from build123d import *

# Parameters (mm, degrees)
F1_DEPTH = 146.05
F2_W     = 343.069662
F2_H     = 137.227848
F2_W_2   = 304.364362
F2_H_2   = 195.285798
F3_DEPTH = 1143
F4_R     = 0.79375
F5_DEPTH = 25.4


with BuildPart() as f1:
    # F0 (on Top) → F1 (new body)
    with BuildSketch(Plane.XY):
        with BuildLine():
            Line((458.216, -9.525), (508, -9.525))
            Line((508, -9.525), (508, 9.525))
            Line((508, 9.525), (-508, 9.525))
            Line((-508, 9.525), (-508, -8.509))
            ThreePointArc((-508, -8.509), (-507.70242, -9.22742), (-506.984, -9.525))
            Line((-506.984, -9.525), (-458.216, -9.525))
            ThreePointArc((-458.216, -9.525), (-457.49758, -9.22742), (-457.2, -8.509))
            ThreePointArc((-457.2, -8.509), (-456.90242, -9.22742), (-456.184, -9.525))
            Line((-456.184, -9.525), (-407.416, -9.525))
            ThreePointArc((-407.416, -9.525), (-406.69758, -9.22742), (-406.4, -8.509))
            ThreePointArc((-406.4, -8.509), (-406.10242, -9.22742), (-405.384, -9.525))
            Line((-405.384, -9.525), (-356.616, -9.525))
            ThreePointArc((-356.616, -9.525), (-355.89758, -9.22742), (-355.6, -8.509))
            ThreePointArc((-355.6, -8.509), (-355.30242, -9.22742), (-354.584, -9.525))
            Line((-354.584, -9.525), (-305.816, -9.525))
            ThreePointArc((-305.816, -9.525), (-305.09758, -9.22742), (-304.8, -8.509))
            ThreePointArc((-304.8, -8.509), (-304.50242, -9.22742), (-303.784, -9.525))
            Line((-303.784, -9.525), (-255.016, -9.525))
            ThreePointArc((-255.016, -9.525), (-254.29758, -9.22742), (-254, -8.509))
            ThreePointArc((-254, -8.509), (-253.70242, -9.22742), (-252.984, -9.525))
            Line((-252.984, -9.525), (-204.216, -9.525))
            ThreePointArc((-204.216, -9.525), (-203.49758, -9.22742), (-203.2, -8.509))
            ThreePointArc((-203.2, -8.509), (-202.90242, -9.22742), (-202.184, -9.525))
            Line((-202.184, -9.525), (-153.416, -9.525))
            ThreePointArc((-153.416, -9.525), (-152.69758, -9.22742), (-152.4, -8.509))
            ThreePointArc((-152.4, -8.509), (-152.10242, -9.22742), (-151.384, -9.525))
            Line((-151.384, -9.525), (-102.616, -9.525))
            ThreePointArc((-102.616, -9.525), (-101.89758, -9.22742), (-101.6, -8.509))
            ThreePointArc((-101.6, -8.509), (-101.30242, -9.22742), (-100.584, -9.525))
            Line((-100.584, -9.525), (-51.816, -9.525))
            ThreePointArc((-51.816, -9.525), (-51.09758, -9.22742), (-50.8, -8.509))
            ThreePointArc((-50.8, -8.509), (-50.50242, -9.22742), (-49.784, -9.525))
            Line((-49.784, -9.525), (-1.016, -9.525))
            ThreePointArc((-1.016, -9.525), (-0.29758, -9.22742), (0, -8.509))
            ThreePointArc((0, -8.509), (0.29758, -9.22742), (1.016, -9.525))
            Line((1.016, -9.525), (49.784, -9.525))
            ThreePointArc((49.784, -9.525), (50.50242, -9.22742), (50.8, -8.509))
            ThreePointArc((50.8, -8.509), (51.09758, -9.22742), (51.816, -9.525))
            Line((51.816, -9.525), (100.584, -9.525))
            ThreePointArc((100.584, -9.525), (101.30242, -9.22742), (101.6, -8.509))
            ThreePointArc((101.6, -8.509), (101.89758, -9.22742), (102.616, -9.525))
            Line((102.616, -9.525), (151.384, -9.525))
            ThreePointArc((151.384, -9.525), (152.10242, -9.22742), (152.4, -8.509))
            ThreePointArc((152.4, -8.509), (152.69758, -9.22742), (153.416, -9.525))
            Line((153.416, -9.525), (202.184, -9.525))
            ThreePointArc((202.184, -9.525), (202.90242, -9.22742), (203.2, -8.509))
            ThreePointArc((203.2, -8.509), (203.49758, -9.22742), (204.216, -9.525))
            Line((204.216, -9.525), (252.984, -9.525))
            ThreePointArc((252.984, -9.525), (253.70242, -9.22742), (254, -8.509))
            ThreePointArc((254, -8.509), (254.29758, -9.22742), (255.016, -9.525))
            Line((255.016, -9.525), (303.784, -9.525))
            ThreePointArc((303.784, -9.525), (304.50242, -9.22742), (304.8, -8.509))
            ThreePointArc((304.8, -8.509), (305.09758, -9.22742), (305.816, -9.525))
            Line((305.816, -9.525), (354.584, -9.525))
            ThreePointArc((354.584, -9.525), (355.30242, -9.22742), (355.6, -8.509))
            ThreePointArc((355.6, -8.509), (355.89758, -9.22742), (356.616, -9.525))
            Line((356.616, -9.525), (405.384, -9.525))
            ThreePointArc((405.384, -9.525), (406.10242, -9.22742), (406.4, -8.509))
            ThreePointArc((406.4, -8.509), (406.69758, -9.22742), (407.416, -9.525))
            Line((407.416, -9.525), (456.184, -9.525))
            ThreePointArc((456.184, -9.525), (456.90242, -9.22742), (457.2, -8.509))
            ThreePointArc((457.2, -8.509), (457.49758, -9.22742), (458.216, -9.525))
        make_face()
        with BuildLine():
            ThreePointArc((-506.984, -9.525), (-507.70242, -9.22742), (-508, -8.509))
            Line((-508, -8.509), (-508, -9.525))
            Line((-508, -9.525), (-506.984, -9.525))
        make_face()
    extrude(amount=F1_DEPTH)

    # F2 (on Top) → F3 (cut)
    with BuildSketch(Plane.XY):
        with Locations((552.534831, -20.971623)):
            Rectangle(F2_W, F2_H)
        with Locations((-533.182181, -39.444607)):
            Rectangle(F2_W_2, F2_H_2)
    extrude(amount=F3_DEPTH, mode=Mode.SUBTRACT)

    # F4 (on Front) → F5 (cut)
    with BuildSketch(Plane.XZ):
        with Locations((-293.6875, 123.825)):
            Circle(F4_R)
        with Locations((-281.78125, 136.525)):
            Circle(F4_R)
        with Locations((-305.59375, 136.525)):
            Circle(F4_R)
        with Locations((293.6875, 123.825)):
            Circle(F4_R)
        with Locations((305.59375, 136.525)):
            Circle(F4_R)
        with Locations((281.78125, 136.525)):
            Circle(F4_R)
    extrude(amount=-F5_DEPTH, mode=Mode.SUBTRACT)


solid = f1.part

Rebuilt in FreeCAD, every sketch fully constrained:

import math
import FreeCAD as App
import Part
import Sketcher
Q = App.Units.Quantity

doc = App.newDocument("Part")
body = doc.addObject("PartDesign::Body", "Body")

# Sketch on XY plane
sketch1 = body.newObject("Sketcher::SketchObject", "Sketch")
sketch1.AttachmentSupport = (doc.getObject("XY_Plane"), [""])
sketch1.MapMode = "FlatFace"
sketch1.addGeometry([
    Part.LineSegment(App.Vector(458.216, -9.525, 0), App.Vector(508, -9.525, 0)),  # 0
    Part.LineSegment(App.Vector(508, -9.525, 0), App.Vector(508, 9.525, 0)),  # 1
    Part.LineSegment(App.Vector(508, 9.525, 0), App.Vector(-508, 9.525, 0)),  # 2
    Part.LineSegment(App.Vector(-508, 9.525, 0), App.Vector(-508, -9.525, 0)),  # 3
    Part.LineSegment(App.Vector(-508, -9.525, 0), App.Vector(-458.216, -9.525, 0)),  # 4
    Part.ArcOfCircle(Part.Circle(App.Vector(-458.216002, -8.508998, 0), App.Vector(0, 0, 1), 1.016002), math.radians(-89.999906), math.radians(-0.000094)),  # 5
    Part.ArcOfCircle(Part.Circle(App.Vector(-456.183998, -8.508998, 0), App.Vector(0, 0, 1), 1.016002), math.radians(-179.999906), math.radians(-90.000094)),  # 6
    Part.LineSegment(App.Vector(-456.184, -9.525, 0), App.Vector(-407.416, -9.525, 0)),  # 7
    Part.ArcOfCircle(Part.Circle(App.Vector(-407.416002, -8.508998, 0), App.Vector(0, 0, 1), 1.016002), math.radians(-89.999906), math.radians(-0.000094)),  # 8
    Part.ArcOfCircle(Part.Circle(App.Vector(-405.383998, -8.508998, 0), App.Vector(0, 0, 1), 1.016002), math.radians(-179.999906), math.radians(-90.000094)),  # 9
    Part.LineSegment(App.Vector(-405.384, -9.525, 0), App.Vector(-356.616, -9.525, 0)),  # 10
    Part.ArcOfCircle(Part.Circle(App.Vector(-356.616002, -8.508998, 0), App.Vector(0, 0, 1), 1.016002), math.radians(-89.999906), math.radians(-0.000094)),  # 11
    Part.ArcOfCircle(Part.Circle(App.Vector(-354.583998, -8.508998, 0), App.Vector(0, 0, 1), 1.016002), math.radians(-179.999906), math.radians(-90.000094)),  # 12
    Part.LineSegment(App.Vector(-354.584, -9.525, 0), App.Vector(-305.816, -9.525, 0)),  # 13
    Part.ArcOfCircle(Part.Circle(App.Vector(-305.816002, -8.508998, 0), App.Vector(0, 0, 1), 1.016002), math.radians(-89.999906), math.radians(-0.000094)),  # 14
    Part.ArcOfCircle(Part.Circle(App.Vector(-303.783998, -8.508998, 0), App.Vector(0, 0, 1), 1.016002), math.radians(-179.999906), math.radians(-90.000094)),  # 15
    Part.LineSegment(App.Vector(-303.784, -9.525, 0), App.Vector(-255.016, -9.525, 0)),  # 16
    Part.ArcOfCircle(Part.Circle(App.Vector(-255.016002, -8.508998, 0), App.Vector(0, 0, 1), 1.016002), math.radians(-89.999906), math.radians(-0.000094)),  # 17
    Part.ArcOfCircle(Part.Circle(App.Vector(-252.983998, -8.508998, 0), App.Vector(0, 0, 1), 1.016002), math.radians(-179.999906), math.radians(-90.000094)),  # 18
    Part.LineSegment(App.Vector(-252.984, -9.525, 0), App.Vector(-204.216, -9.525, 0)),  # 19
    Part.ArcOfCircle(Part.Circle(App.Vector(-204.216002, -8.508998, 0), App.Vector(0, 0, 1), 1.016002), math.radians(-89.999906), math.radians(-0.000094)),  # 20
    Part.ArcOfCircle(Part.Circle(App.Vector(-202.183998, -8.508998, 0), App.Vector(0, 0, 1), 1.016002), math.radians(-179.999906), math.radians(-90.000094)),  # 21
    Part.LineSegment(App.Vector(-202.184, -9.525, 0), App.Vector(-153.416, -9.525, 0)),  # 22
    Part.ArcOfCircle(Part.Circle(App.Vector(-153.416002, -8.508998, 0), App.Vector(0, 0, 1), 1.016002), math.radians(-89.999906), math.radians(-0.000094)),  # 23
    Part.ArcOfCircle(Part.Circle(App.Vector(-151.383998, -8.508998, 0), App.Vector(0, 0, 1), 1.016002), math.radians(-179.999906), math.radians(-90.000094)),  # 24
    Part.LineSegment(App.Vector(-151.384, -9.525, 0), App.Vector(-102.616, -9.525, 0)),  # 25
    Part.ArcOfCircle(Part.Circle(App.Vector(-102.616002, -8.508998, 0), App.Vector(0, 0, 1), 1.016002), math.radians(-89.999906), math.radians(-0.000094)),  # 26
    Part.ArcOfCircle(Part.Circle(App.Vector(-100.583998, -8.508998, 0), App.Vector(0, 0, 1), 1.016002), math.radians(-179.999906), math.radians(-90.000094)),  # 27
    Part.LineSegment(App.Vector(-100.584, -9.525, 0), App.Vector(-51.816, -9.525, 0)),  # 28
    Part.ArcOfCircle(Part.Circle(App.Vector(-51.816002, -8.508998, 0), App.Vector(0, 0, 1), 1.016002), math.radians(-89.999906), math.radians(-0.000094)),  # 29
    Part.ArcOfCircle(Part.Circle(App.Vector(-49.783998, -8.508998, 0), App.Vector(0, 0, 1), 1.016002), math.radians(-179.999906), math.radians(-90.000094)),  # 30
    Part.LineSegment(App.Vector(-49.784, -9.525, 0), App.Vector(-1.016, -9.525, 0)),  # 31
    Part.ArcOfCircle(Part.Circle(App.Vector(-1.016002, -8.508998, 0), App.Vector(0, 0, 1), 1.016002), math.radians(-89.999906), math.radians(-0.000094)),  # 32
    Part.ArcOfCircle(Part.Circle(App.Vector(1.016002, -8.508998, 0), App.Vector(0, 0, 1), 1.016002), math.radians(-179.999906), math.radians(-90.000094)),  # 33
    Part.LineSegment(App.Vector(1.016, -9.525, 0), App.Vector(49.784, -9.525, 0)),  # 34
    Part.ArcOfCircle(Part.Circle(App.Vector(49.783998, -8.508998, 0), App.Vector(0, 0, 1), 1.016002), math.radians(-89.999906), math.radians(-0.000094)),  # 35
    Part.ArcOfCircle(Part.Circle(App.Vector(51.816002, -8.508998, 0), App.Vector(0, 0, 1), 1.016002), math.radians(-179.999906), math.radians(-90.000094)),  # 36
    Part.LineSegment(App.Vector(51.816, -9.525, 0), App.Vector(100.584, -9.525, 0)),  # 37
    Part.ArcOfCircle(Part.Circle(App.Vector(100.583998, -8.508998, 0), App.Vector(0, 0, 1), 1.016002), math.radians(-89.999906), math.radians(-0.000094)),  # 38
    Part.ArcOfCircle(Part.Circle(App.Vector(102.616002, -8.508998, 0), App.Vector(0, 0, 1), 1.016002), math.radians(-179.999906), math.radians(-90.000094)),  # 39
    Part.LineSegment(App.Vector(102.616, -9.525, 0), App.Vector(151.384, -9.525, 0)),  # 40
    Part.ArcOfCircle(Part.Circle(App.Vector(151.383998, -8.508998, 0), App.Vector(0, 0, 1), 1.016002), math.radians(-89.999906), math.radians(-0.000094)),  # 41
    Part.ArcOfCircle(Part.Circle(App.Vector(153.416002, -8.508998, 0), App.Vector(0, 0, 1), 1.016002), math.radians(-179.999906), math.radians(-90.000094)),  # 42
    Part.LineSegment(App.Vector(153.416, -9.525, 0), App.Vector(202.184, -9.525, 0)),  # 43
    Part.ArcOfCircle(Part.Circle(App.Vector(202.183998, -8.508998, 0), App.Vector(0, 0, 1), 1.016002), math.radians(-89.999906), math.radians(-0.000094)),  # 44
    Part.ArcOfCircle(Part.Circle(App.Vector(204.216002, -8.508998, 0), App.Vector(0, 0, 1), 1.016002), math.radians(-179.999906), math.radians(-90.000094)),  # 45
    Part.LineSegment(App.Vector(204.216, -9.525, 0), App.Vector(252.984, -9.525, 0)),  # 46
    Part.ArcOfCircle(Part.Circle(App.Vector(252.983998, -8.508998, 0), App.Vector(0, 0, 1), 1.016002), math.radians(-89.999906), math.radians(-0.000094)),  # 47
    Part.ArcOfCircle(Part.Circle(App.Vector(255.016002, -8.508998, 0), App.Vector(0, 0, 1), 1.016002), math.radians(-179.999906), math.radians(-90.000094)),  # 48
    Part.LineSegment(App.Vector(255.016, -9.525, 0), App.Vector(303.784, -9.525, 0)),  # 49
    Part.ArcOfCircle(Part.Circle(App.Vector(303.783998, -8.508998, 0), App.Vector(0, 0, 1), 1.016002), math.radians(-89.999906), math.radians(-0.000094)),  # 50
    Part.ArcOfCircle(Part.Circle(App.Vector(305.816002, -8.508998, 0), App.Vector(0, 0, 1), 1.016002), math.radians(-179.999906), math.radians(-90.000094)),  # 51
    Part.LineSegment(App.Vector(305.816, -9.525, 0), App.Vector(354.584, -9.525, 0)),  # 52
    Part.ArcOfCircle(Part.Circle(App.Vector(354.583998, -8.508998, 0), App.Vector(0, 0, 1), 1.016002), math.radians(-89.999906), math.radians(-0.000094)),  # 53
    Part.ArcOfCircle(Part.Circle(App.Vector(356.616002, -8.508998, 0), App.Vector(0, 0, 1), 1.016002), math.radians(-179.999906), math.radians(-90.000094)),  # 54
    Part.LineSegment(App.Vector(356.616, -9.525, 0), App.Vector(405.384, -9.525, 0)),  # 55
    Part.ArcOfCircle(Part.Circle(App.Vector(405.383998, -8.508998, 0), App.Vector(0, 0, 1), 1.016002), math.radians(-89.999906), math.radians(-0.000094)),  # 56
    Part.ArcOfCircle(Part.Circle(App.Vector(407.416002, -8.508998, 0), App.Vector(0, 0, 1), 1.016002), math.radians(-179.999906), math.radians(-90.000094)),  # 57
    Part.LineSegment(App.Vector(407.416, -9.525, 0), App.Vector(456.184, -9.525, 0)),  # 58
    Part.ArcOfCircle(Part.Circle(App.Vector(456.183998, -8.508998, 0), App.Vector(0, 0, 1), 1.016002), math.radians(-89.999906), math.radians(-0.000094)),  # 59
    Part.ArcOfCircle(Part.Circle(App.Vector(458.216002, -8.508998, 0), App.Vector(0, 0, 1), 1.016002), math.radians(-179.999906), math.radians(-90.000094)),  # 60
], False)
sketch1.addConstraint([
    Sketcher.Constraint("Coincident", 0, 2, 1, 1),
    Sketcher.Constraint("Coincident", 1, 2, 2, 1),
    Sketcher.Constraint("Coincident", 2, 2, 3, 1),
    Sketcher.Constraint("Coincident", 3, 2, 4, 1),
    Sketcher.Constraint("Tangent", 4, 2, 5, 1),
    Sketcher.Constraint("Coincident", 5, 2, 6, 1),
    Sketcher.Constraint("Tangent", 6, 2, 7, 1),
    Sketcher.Constraint("Tangent", 7, 2, 8, 1),
    Sketcher.Constraint("Coincident", 8, 2, 9, 1),
    Sketcher.Constraint("Tangent", 9, 2, 10, 1),
    Sketcher.Constraint("Tangent", 10, 2, 11, 1),
    Sketcher.Constraint("Coincident", 11, 2, 12, 1),
    Sketcher.Constraint("Tangent", 12, 2, 13, 1),
    Sketcher.Constraint("Tangent", 13, 2, 14, 1),
    Sketcher.Constraint("Coincident", 14, 2, 15, 1),
    Sketcher.Constraint("Tangent", 15, 2, 16, 1),
    Sketcher.Constraint("Tangent", 16, 2, 17, 1),
    Sketcher.Constraint("Coincident", 17, 2, 18, 1),
    Sketcher.Constraint("Tangent", 18, 2, 19, 1),
    Sketcher.Constraint("Tangent", 19, 2, 20, 1),
    Sketcher.Constraint("Coincident", 20, 2, 21, 1),
    Sketcher.Constraint("Tangent", 21, 2, 22, 1),
    Sketcher.Constraint("Tangent", 22, 2, 23, 1),
    Sketcher.Constraint("Coincident", 23, 2, 24, 1),
    Sketcher.Constraint("Tangent", 24, 2, 25, 1),
    Sketcher.Constraint("Tangent", 25, 2, 26, 1),
    Sketcher.Constraint("Coincident", 26, 2, 27, 1),
    Sketcher.Constraint("Tangent", 27, 2, 28, 1),
    Sketcher.Constraint("Tangent", 28, 2, 29, 1),
    Sketcher.Constraint("Coincident", 29, 2, 30, 1),
    Sketcher.Constraint("Tangent", 30, 2, 31, 1),
    Sketcher.Constraint("Tangent", 31, 2, 32, 1),
    Sketcher.Constraint("Coincident", 32, 2, 33, 1),
    Sketcher.Constraint("Tangent", 33, 2, 34, 1),
    Sketcher.Constraint("Tangent", 34, 2, 35, 1),
    Sketcher.Constraint("Coincident", 35, 2, 36, 1),
    Sketcher.Constraint("Tangent", 36, 2, 37, 1),
    Sketcher.Constraint("Tangent", 37, 2, 38, 1),
    Sketcher.Constraint("Coincident", 38, 2, 39, 1),
    Sketcher.Constraint("Tangent", 39, 2, 40, 1),
    Sketcher.Constraint("Tangent", 40, 2, 41, 1),
    Sketcher.Constraint("Coincident", 41, 2, 42, 1),
    Sketcher.Constraint("Tangent", 42, 2, 43, 1),
    Sketcher.Constraint("Tangent", 43, 2, 44, 1),
    Sketcher.Constraint("Coincident", 44, 2, 45, 1),
    Sketcher.Constraint("Tangent", 45, 2, 46, 1),
    Sketcher.Constraint("Tangent", 46, 2, 47, 1),
    Sketcher.Constraint("Coincident", 47, 2, 48, 1),
    Sketcher.Constraint("Tangent", 48, 2, 49, 1),
    Sketcher.Constraint("Tangent", 49, 2, 50, 1),
    Sketcher.Constraint("Coincident", 50, 2, 51, 1),
    Sketcher.Constraint("Tangent", 51, 2, 52, 1),
    Sketcher.Constraint("Tangent", 52, 2, 53, 1),
    Sketcher.Constraint("Coincident", 53, 2, 54, 1),
    Sketcher.Constraint("Tangent", 54, 2, 55, 1),
    Sketcher.Constraint("Tangent", 55, 2, 56, 1),
    Sketcher.Constraint("Coincident", 56, 2, 57, 1),
    Sketcher.Constraint("Tangent", 57, 2, 58, 1),
    Sketcher.Constraint("Tangent", 58, 2, 59, 1),
    Sketcher.Constraint("Coincident", 59, 2, 60, 1),
    Sketcher.Constraint("Tangent", 60, 2, 0, 1),
    Sketcher.Constraint("Horizontal", 0),
    Sketcher.Constraint("Vertical", 1),
    Sketcher.Constraint("Horizontal", 2),
    Sketcher.Constraint("Vertical", 3),
    Sketcher.Constraint("Horizontal", 4),
    Sketcher.Constraint("Horizontal", 7),
    Sketcher.Constraint("Horizontal", 10),
    Sketcher.Constraint("Horizontal", 13),
    Sketcher.Constraint("Horizontal", 16),
    Sketcher.Constraint("Horizontal", 19),
    Sketcher.Constraint("Horizontal", 22),
    Sketcher.Constraint("Horizontal", 25),
    Sketcher.Constraint("Horizontal", 28),
    Sketcher.Constraint("Horizontal", 31),
    Sketcher.Constraint("Horizontal", 34),
    Sketcher.Constraint("Horizontal", 37),
    Sketcher.Constraint("Horizontal", 40),
    Sketcher.Constraint("Horizontal", 43),
    Sketcher.Constraint("Horizontal", 46),
    Sketcher.Constraint("Horizontal", 49),
    Sketcher.Constraint("Horizontal", 52),
    Sketcher.Constraint("Horizontal", 55),
    Sketcher.Constraint("Horizontal", 58),
    Sketcher.Constraint("Equal", 5, 6),
    Sketcher.Constraint("Equal", 6, 8),
    Sketcher.Constraint("Equal", 8, 9),
    Sketcher.Constraint("Equal", 9, 11),
    Sketcher.Constraint("Equal", 11, 12),
    Sketcher.Constraint("Equal", 12, 14),
    Sketcher.Constraint("Equal", 14, 15),
    Sketcher.Constraint("Equal", 15, 17),
    Sketcher.Constraint("Equal", 17, 18),
    Sketcher.Constraint("Equal", 18, 20),
    Sketcher.Constraint("Equal", 20, 21),
    Sketcher.Constraint("Equal", 21, 23),
    Sketcher.Constraint("Equal", 23, 24),
    Sketcher.Constraint("Equal", 24, 26),
    Sketcher.Constraint("Equal", 26, 27),
    Sketcher.Constraint("Equal", 27, 29),
    Sketcher.Constraint("Equal", 29, 30),
    Sketcher.Constraint("Equal", 30, 32),
    Sketcher.Constraint("Equal", 32, 33),
    Sketcher.Constraint("Equal", 33, 35),
    Sketcher.Constraint("Equal", 35, 36),
    Sketcher.Constraint("Equal", 36, 38),
    Sketcher.Constraint("Equal", 38, 39),
    Sketcher.Constraint("Equal", 39, 41),
    Sketcher.Constraint("Equal", 41, 42),
    Sketcher.Constraint("Equal", 42, 44),
    Sketcher.Constraint("Equal", 44, 45),
    Sketcher.Constraint("Equal", 45, 47),
    Sketcher.Constraint("Equal", 47, 48),
    Sketcher.Constraint("Equal", 48, 50),
    Sketcher.Constraint("Equal", 50, 51),
    Sketcher.Constraint("Equal", 51, 53),
    Sketcher.Constraint("Equal", 53, 54),
    Sketcher.Constraint("Equal", 54, 56),
    Sketcher.Constraint("Equal", 56, 57),
    Sketcher.Constraint("Equal", 57, 59),
    Sketcher.Constraint("Equal", 59, 60),
    Sketcher.Constraint("Symmetric", 0, 2, 2, 2, -1, 1),
    Sketcher.Constraint("Symmetric", 32, 3, 33, 3, -2),
    Sketcher.Constraint("Symmetric", 29, 3, 36, 3, -2),
    Sketcher.Constraint("Symmetric", 26, 3, 39, 3, -2),
    Sketcher.Constraint("Symmetric", 23, 3, 42, 3, -2),
    Sketcher.Constraint("Symmetric", 20, 3, 45, 3, -2),
    Sketcher.Constraint("Symmetric", 17, 3, 48, 3, -2),
    Sketcher.Constraint("Symmetric", 14, 3, 51, 3, -2),
    Sketcher.Constraint("Symmetric", 11, 3, 54, 3, -2),
    Sketcher.Constraint("Symmetric", 8, 3, 57, 3, -2),
    Sketcher.Constraint("Symmetric", 5, 3, 60, 3, -2),
    Sketcher.Constraint("Horizontal", 5, 3, 6, 3),
    Sketcher.Constraint("Horizontal", 8, 3, 9, 3),
    Sketcher.Constraint("Horizontal", 11, 3, 12, 3),
    Sketcher.Constraint("Horizontal", 14, 3, 15, 3),
    Sketcher.Constraint("Horizontal", 17, 3, 18, 3),
    Sketcher.Constraint("Horizontal", 20, 3, 21, 3),
    Sketcher.Constraint("Horizontal", 23, 3, 24, 3),
    Sketcher.Constraint("Horizontal", 26, 3, 27, 3),
    Sketcher.Constraint("Horizontal", 29, 3, 30, 3),
    Sketcher.Constraint("Horizontal", 60, 3, 5, 2),
    Sketcher.Constraint("Horizontal", 5, 2, 8, 2),
    Sketcher.Constraint("Horizontal", 8, 2, 11, 2),
    Sketcher.Constraint("Horizontal", 11, 2, 14, 2),
    Sketcher.Constraint("Horizontal", 14, 2, 17, 2),
    Sketcher.Constraint("Horizontal", 17, 2, 20, 2),
    Sketcher.Constraint("Horizontal", 20, 2, 23, 2),
    Sketcher.Constraint("Horizontal", 23, 2, 26, 2),
    Sketcher.Constraint("Horizontal", 26, 2, 29, 2),
    Sketcher.Constraint("Horizontal", 29, 2, 32, 2),
    Sketcher.Constraint("Horizontal", 32, 2, 35, 2),
    Sketcher.Constraint("Horizontal", 35, 2, 38, 2),
    Sketcher.Constraint("Horizontal", 38, 2, 41, 2),
    Sketcher.Constraint("Horizontal", 41, 2, 44, 2),
    Sketcher.Constraint("Horizontal", 44, 2, 47, 2),
    Sketcher.Constraint("Horizontal", 47, 2, 50, 2),
    Sketcher.Constraint("Horizontal", 50, 2, 53, 2),
    Sketcher.Constraint("Horizontal", 53, 2, 56, 2),
    Sketcher.Constraint("Horizontal", 56, 2, 59, 2),
    Sketcher.Constraint("Equal", 7, 10),
    Sketcher.Constraint("Equal", 10, 13),
    Sketcher.Constraint("Equal", 13, 16),
    Sketcher.Constraint("Equal", 16, 19),
    Sketcher.Constraint("Equal", 19, 22),
    Sketcher.Constraint("Equal", 22, 25),
    Sketcher.Constraint("Equal", 25, 28),
    Sketcher.Constraint("Equal", 28, 31),
    Sketcher.Constraint("DistanceX", 2, 2, 2, 1, Q("40 in")),
    Sketcher.Constraint("Radius", 5, Q("0.0400001 in")),
    Sketcher.Constraint("DistanceX", 5, 2, -1, 1, Q("18 in")),
    Sketcher.Constraint("DistanceY", 1, 1, 1, 2, Q("0.75 in")),
])
pad1 = body.newObject("PartDesign::Pad", "Pad")
pad1.Profile = sketch1
pad1.Length = Q("5.75 in")

# Sketch on XY plane
sketch2 = body.newObject("Sketcher::SketchObject", "Sketch001")
sketch2.AttachmentSupport = (doc.getObject("XY_Plane"), [""])
sketch2.MapMode = "FlatFace"
sketch2.addGeometry([
    Part.LineSegment(App.Vector(381, 47.642301, 0), App.Vector(381, -89.585547, 0)),  # 0
    Part.LineSegment(App.Vector(381, -89.585547, 0), App.Vector(724.069662, -89.585547, 0)),  # 1
    Part.LineSegment(App.Vector(724.069662, -89.585547, 0), App.Vector(724.069662, 47.642301, 0)),  # 2
    Part.LineSegment(App.Vector(724.069662, 47.642301, 0), App.Vector(381, 47.642301, 0)),  # 3
    Part.LineSegment(App.Vector(-685.364362, 58.198292, 0), App.Vector(-685.364362, -137.087506, 0)),  # 4
    Part.LineSegment(App.Vector(-685.364362, -137.087506, 0), App.Vector(-381, -137.087506, 0)),  # 5
    Part.LineSegment(App.Vector(-381, -137.087506, 0), App.Vector(-381, 58.198292, 0)),  # 6
    Part.LineSegment(App.Vector(-381, 58.198292, 0), App.Vector(-685.364362, 58.198292, 0)),  # 7
], False)
sketch2.addConstraint([
    Sketcher.Constraint("Coincident", 0, 2, 1, 1),
    Sketcher.Constraint("Coincident", 1, 2, 2, 1),
    Sketcher.Constraint("Coincident", 2, 2, 3, 1),
    Sketcher.Constraint("Coincident", 3, 2, 0, 1),
    Sketcher.Constraint("Coincident", 4, 2, 5, 1),
    Sketcher.Constraint("Coincident", 5, 2, 6, 1),
    Sketcher.Constraint("Coincident", 6, 2, 7, 1),
    Sketcher.Constraint("Coincident", 7, 2, 4, 1),
    Sketcher.Constraint("Vertical", 0),
    Sketcher.Constraint("Horizontal", 1),
    Sketcher.Constraint("Vertical", 2),
    Sketcher.Constraint("Horizontal", 3),
    Sketcher.Constraint("Vertical", 4),
    Sketcher.Constraint("Horizontal", 5),
    Sketcher.Constraint("Vertical", 6),
    Sketcher.Constraint("Horizontal", 7),
    Sketcher.Constraint("DistanceX", -1, 1, 0, 2, Q("15 in")),
    Sketcher.Constraint("DistanceX", 5, 2, -1, 1, Q("15 in")),
    Sketcher.Constraint("DistanceY", 4, 2, 4, 1, Q("195.285798 mm")),
    Sketcher.Constraint("DistanceX", 1, 1, 1, 2, Q("343.069662 mm")),
    Sketcher.Constraint("DistanceY", 0, 2, 0, 1, Q("137.227848 mm")),
    Sketcher.Constraint("DistanceY", -1, 1, 2, 2, Q("47.642301 mm")),
    Sketcher.Constraint("DistanceX", 5, 1, 5, 2, Q("304.364362 mm")),
    Sketcher.Constraint("DistanceY", 4, 2, 0, 2, Q("47.501959 mm")),
])
pocket1 = body.newObject("PartDesign::Pocket", "Pocket")
pocket1.Profile = sketch2
pocket1.Length = Q("45 in")
pocket1.Reversed = True

# Sketch on XZ plane
sketch3 = body.newObject("Sketcher::SketchObject", "Sketch002")
sketch3.AttachmentSupport = (doc.getObject("XZ_Plane"), [""])
sketch3.MapMode = "FlatFace"
sketch3.addGeometry([
    Part.Circle(App.Vector(-293.6875, 123.825, 0), App.Vector(0, 0, 1), 0.79375),  # 0
    Part.Circle(App.Vector(-281.78125, 136.525, 0), App.Vector(0, 0, 1), 0.79375),  # 1
    Part.Circle(App.Vector(-305.59375, 136.525, 0), App.Vector(0, 0, 1), 0.79375),  # 2
    Part.Circle(App.Vector(293.6875, 123.825, 0), App.Vector(0, 0, 1), 0.79375),  # 3
    Part.Circle(App.Vector(305.59375, 136.525, 0), App.Vector(0, 0, 1), 0.79375),  # 4
    Part.Circle(App.Vector(281.78125, 136.525, 0), App.Vector(0, 0, 1), 0.79375),  # 5
], False)
sketch3.addConstraint([
    Sketcher.Constraint("Equal", 0, 1),
    Sketcher.Constraint("Equal", 1, 2),
    Sketcher.Constraint("Equal", 2, 3),
    Sketcher.Constraint("Equal", 3, 4),
    Sketcher.Constraint("Equal", 4, 5),
    Sketcher.Constraint("Symmetric", 0, 3, 3, 3, -2),
    Sketcher.Constraint("Symmetric", 2, 3, 4, 3, -2),
    Sketcher.Constraint("Symmetric", 1, 3, 5, 3, -2),
    Sketcher.Constraint("Horizontal", 1, 3, 2, 3),
    Sketcher.Constraint("Diameter", 0, Q("0.0625 in")),
    Sketcher.Constraint("DistanceY", 0, 3, 1, 3, Q("0.5 in")),
    Sketcher.Constraint("DistanceX", 0, 3, -1, 1, Q("11.5625 in")),
    Sketcher.Constraint("DistanceY", -1, 1, 0, 3, Q("4.875 in")),
    Sketcher.Constraint("DistanceX", 1, 3, -1, 1, Q("11.09375 in")),
    Sketcher.Constraint("DistanceX", 2, 3, -1, 1, Q("12.03125 in")),
])
pocket2 = body.newObject("PartDesign::Pocket", "Pocket001")
pocket2.Profile = sketch3
pocket2.Length = Q("1 in")

doc.recompute()
